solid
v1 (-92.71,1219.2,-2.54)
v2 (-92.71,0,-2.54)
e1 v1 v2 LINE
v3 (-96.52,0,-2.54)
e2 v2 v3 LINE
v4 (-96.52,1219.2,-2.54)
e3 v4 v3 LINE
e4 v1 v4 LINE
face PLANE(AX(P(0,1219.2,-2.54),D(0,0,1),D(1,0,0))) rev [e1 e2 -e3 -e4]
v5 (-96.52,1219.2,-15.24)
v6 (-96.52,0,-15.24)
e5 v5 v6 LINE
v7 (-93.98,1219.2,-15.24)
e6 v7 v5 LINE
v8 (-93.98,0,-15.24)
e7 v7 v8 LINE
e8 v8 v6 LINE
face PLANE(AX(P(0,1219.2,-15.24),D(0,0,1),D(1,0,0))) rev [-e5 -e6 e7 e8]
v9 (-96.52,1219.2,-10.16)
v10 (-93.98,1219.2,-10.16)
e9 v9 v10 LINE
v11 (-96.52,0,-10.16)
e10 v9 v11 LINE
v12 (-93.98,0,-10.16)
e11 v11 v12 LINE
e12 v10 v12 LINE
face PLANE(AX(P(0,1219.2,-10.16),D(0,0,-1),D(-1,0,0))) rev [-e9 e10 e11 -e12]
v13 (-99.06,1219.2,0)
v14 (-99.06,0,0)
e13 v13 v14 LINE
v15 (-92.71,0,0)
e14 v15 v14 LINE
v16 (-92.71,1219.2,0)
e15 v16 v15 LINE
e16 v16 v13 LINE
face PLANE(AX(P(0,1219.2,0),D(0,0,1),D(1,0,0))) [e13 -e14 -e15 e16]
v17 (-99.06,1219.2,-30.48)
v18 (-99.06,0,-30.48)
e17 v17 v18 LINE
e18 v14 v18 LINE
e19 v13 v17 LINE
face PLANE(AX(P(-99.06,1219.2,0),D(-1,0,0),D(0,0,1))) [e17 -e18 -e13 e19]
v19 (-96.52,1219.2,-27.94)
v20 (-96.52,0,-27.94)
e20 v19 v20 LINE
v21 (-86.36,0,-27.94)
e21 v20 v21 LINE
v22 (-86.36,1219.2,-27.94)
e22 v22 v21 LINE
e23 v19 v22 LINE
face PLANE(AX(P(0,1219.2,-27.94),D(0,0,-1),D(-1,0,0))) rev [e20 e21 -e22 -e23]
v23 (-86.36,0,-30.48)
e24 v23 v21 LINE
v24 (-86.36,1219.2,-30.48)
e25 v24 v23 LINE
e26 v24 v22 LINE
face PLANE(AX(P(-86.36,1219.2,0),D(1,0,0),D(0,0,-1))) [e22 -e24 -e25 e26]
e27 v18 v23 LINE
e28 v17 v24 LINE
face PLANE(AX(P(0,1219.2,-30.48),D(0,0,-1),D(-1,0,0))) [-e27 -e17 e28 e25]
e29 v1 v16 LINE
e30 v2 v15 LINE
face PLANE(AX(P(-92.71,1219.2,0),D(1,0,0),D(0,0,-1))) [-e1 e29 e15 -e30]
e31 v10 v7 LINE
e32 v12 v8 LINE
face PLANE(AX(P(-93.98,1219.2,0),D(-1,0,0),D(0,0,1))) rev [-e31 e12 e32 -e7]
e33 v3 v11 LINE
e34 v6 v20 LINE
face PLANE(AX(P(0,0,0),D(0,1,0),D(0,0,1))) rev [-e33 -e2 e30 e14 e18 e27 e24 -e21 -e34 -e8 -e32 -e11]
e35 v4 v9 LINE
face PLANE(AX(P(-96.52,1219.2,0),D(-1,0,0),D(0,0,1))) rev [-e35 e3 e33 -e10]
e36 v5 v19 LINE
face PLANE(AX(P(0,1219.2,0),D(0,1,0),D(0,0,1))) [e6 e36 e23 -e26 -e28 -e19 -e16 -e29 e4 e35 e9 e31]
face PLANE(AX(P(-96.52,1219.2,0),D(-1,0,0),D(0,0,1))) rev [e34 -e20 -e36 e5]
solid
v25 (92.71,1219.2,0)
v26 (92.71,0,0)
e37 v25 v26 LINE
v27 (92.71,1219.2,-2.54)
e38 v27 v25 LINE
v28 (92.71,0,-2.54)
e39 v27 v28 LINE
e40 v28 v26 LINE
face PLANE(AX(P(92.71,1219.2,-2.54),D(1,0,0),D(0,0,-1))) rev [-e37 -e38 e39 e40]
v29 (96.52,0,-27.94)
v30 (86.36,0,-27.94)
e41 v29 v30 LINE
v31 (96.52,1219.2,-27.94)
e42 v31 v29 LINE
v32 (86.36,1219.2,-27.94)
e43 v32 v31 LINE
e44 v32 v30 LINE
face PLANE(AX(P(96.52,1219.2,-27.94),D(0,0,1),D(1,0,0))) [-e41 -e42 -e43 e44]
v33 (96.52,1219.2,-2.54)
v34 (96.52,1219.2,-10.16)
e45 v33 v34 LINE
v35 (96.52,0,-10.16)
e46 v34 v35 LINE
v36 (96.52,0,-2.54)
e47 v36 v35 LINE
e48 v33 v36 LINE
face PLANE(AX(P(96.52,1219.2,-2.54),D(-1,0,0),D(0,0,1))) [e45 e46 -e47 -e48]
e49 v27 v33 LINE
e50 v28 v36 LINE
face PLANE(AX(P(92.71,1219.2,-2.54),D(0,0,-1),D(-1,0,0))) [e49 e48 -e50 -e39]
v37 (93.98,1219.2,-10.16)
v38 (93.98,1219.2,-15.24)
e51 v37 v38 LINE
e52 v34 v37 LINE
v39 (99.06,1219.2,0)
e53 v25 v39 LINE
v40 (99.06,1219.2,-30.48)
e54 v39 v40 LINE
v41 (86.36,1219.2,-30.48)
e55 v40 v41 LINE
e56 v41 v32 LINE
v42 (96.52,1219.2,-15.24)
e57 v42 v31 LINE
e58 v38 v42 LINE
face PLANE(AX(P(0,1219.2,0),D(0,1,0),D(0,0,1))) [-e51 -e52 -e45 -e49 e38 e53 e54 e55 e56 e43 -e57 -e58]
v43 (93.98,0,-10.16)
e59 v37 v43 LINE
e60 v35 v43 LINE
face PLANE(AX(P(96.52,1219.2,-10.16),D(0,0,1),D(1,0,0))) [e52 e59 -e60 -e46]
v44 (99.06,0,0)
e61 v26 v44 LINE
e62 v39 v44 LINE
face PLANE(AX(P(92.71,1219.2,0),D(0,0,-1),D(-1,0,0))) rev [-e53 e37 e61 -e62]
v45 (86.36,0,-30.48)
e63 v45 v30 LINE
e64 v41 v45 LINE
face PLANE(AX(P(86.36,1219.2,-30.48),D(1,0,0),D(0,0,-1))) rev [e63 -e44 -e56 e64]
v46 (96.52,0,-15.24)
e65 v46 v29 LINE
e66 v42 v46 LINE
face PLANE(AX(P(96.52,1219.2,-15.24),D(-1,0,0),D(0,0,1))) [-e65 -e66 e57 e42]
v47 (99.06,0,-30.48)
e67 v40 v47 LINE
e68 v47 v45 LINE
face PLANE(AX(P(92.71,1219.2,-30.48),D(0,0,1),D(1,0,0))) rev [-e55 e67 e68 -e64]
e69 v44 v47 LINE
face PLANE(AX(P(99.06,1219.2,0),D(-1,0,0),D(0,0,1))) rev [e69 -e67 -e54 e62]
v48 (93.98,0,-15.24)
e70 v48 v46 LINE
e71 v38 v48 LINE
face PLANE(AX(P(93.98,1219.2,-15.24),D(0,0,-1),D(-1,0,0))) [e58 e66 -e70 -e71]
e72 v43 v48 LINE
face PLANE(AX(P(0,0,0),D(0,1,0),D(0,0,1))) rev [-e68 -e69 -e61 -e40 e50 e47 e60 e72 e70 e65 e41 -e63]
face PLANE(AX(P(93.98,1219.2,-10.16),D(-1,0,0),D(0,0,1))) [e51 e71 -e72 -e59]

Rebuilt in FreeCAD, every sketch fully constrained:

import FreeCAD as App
import Part
import Sketcher
Q = App.Units.Quantity


def add_polygon(sketch, points):
    """Adds a closed chain of lines whose ends are joined by coincident constraints."""
    first, n = sketch.GeometryCount, len(points)
    for a, b in zip(points, points[1:] + points[:1]):
        sketch.addGeometry(Part.LineSegment(App.Vector(*a, 0), App.Vector(*b, 0)), False)
    for i in range(n):
        sketch.addConstraint(Sketcher.Constraint("Coincident", first + i, 2, first + (i + 1) % n, 1))

doc = App.newDocument("Part")
params = doc.addObject("Spreadsheet::Sheet", "Params")
for row, (alias, value) in enumerate([
    ("sketch1_width", "0.1 in"),
    ("sketch1_width2", "0.4 in"),
    ("sketch1_width3", "0.5 in"),
    ("sketch1_height", "0.3 in"),
    ("sketch1_height2", "0.2 in"),
    ("pad1_length", "48 in"),
    ("sketch2_width", "0.5 in"),
    ("sketch2_width2", "0.4 in"),
    ("sketch2_width3", "0.1 in"),
    ("sketch2_height", "1.2 in"),
    ("sketch2_height2", "0.2 in"),
    ("pad2_length", "48 in"),
], start=1):
    params.set(f"A{row}", alias)
    params.set(f"B{row}", "=" + value)
    params.setAlias(f"B{row}", alias)

body = doc.addObject("PartDesign::Body", "Body")

# Sketch on XZ plane
sketch1 = body.newObject("Sketcher::SketchObject", "Sketch")
sketch1.AttachmentSupport = (doc.getObject("XZ_Plane"), [""])
sketch1.MapMode = "FlatFace"
add_polygon(sketch1, [(-99.1, 0), (-92.7, 0), (-92.7, -2.5), (-96.5, -2.5), (-96.5, -10.2), (-94, -10.2), (-94, -15.2), (-96.5, -15.2), (-96.5, -27.9), (-86.4, -27.9), (-86.4, -30.5), (-99.1, -30.5)])  # lines 0-11
sketch1.addConstraint(Sketcher.Constraint("Horizontal", 0))
sketch1.addConstraint(Sketcher.Constraint("Vertical", 1))
sketch1.addConstraint(Sketcher.Constraint("Horizontal", 2))
sketch1.addConstraint(Sketcher.Constraint("Vertical", 3))
sketch1.addConstraint(Sketcher.Constraint("Horizontal", 4))
sketch1.addConstraint(Sketcher.Constraint("Vertical", 5))
sketch1.addConstraint(Sketcher.Constraint("Horizontal", 6))
sketch1.addConstraint(Sketcher.Constraint("Vertical", 7))
sketch1.addConstraint(Sketcher.Constraint("Horizontal", 8))
sketch1.addConstraint(Sketcher.Constraint("Vertical", 9))
sketch1.addConstraint(Sketcher.Constraint("Horizontal", 10))
sketch1.addConstraint(Sketcher.Constraint("Vertical", 11))
sketch1.addConstraint(Sketcher.Constraint("PointOnObject", 0, 2, -1))
sketch1.addConstraint(Sketcher.Constraint("Vertical", 3, 2, 6, 2))
sketch1.addConstraint(Sketcher.Constraint("Equal", 6, 1))
sketch1.addConstraint(Sketcher.Constraint("Equal", 10, 7))
sketch1.addConstraint(Sketcher.Constraint("Equal", 1, 9))
sketch1.addConstraint(Sketcher.Constraint("DistanceX", 4, 1, 4, 2, Q("0.1 in")))
sketch1.addConstraint(Sketcher.Constraint("DistanceX", 8, 1, 8, 2, Q("0.4 in")))
sketch1.addConstraint(Sketcher.Constraint("DistanceX", 10, 2, 10, 1, Q("0.5 in")))
sketch1.addConstraint(Sketcher.Constraint("DistanceY", 3, 2, 3, 1, Q("0.3 in")))
sketch1.addConstraint(Sketcher.Constraint("DistanceY", 5, 2, 5, 1, Q("0.2 in")))
sketch1.addConstraint(Sketcher.Constraint("DistanceX", 0, 1, 0, 2, Q("0.25 in")))
sketch1.addConstraint(Sketcher.Constraint("DistanceX", 2, 2, -1, 1, Q("3.8 in")))
sketch1.setExpression("Constraints[29]", "Params.sketch1_width")
sketch1.setExpression("Constraints[30]", "Params.sketch1_width2")
sketch1.setExpression("Constraints[31]", "Params.sketch1_width3")
sketch1.setExpression("Constraints[32]", "Params.sketch1_height")
sketch1.setExpression("Constraints[33]", "Params.sketch1_height2")
pad1 = body.newObject("PartDesign::Pad", "Pad")
pad1.Profile = sketch1
pad1.setExpression("Length", "Params.pad1_length")
pad1.Reversed = True
body2 = doc.addObject("PartDesign::Body", "Body001")

# Sketch on XZ plane
sketch2 = body2.newObject("Sketcher::SketchObject", "Sketch001")
sketch2.AttachmentSupport = (doc.getObject("XZ_Plane001"), [""])
sketch2.MapMode = "FlatFace"
add_polygon(sketch2, [(96.5, -2.5), (92.7, -2.5), (92.7, 0), (99.1, 0), (99.1, -30.5), (86.4, -30.5), (86.4, -27.9), (96.5, -27.9), (96.5, -15.2), (94, -15.2), (94, -10.2), (96.5, -10.2)])  # lines 0-11
sketch2.addConstraint(Sketcher.Constraint("Horizontal", 0))
sketch2.addConstraint(Sketcher.Constraint("Vertical", 1))
sketch2.addConstraint(Sketcher.Constraint("Horizontal", 2))
sketch2.addConstraint(Sketcher.Constraint("Vertical", 3))
sketch2.addConstraint(Sketcher.Constraint("Horizontal", 4))
sketch2.addConstraint(Sketcher.Constraint("Vertical", 5))
sketch2.addConstraint(Sketcher.Constraint("Horizontal", 6))
sketch2.addConstraint(Sketcher.Constraint("Vertical", 7))
sketch2.addConstraint(Sketcher.Constraint("Horizontal", 8))
sketch2.addConstraint(Sketcher.Constraint("Vertical", 9))
sketch2.addConstraint(Sketcher.Constraint("Horizontal", 10))
sketch2.addConstraint(Sketcher.Constraint("Vertical", 11))
sketch2.addConstraint(Sketcher.Constraint("PointOnObject", 1, 2, -1))
sketch2.addConstraint(Sketcher.Constraint("Vertical", 7, 2, 10, 2))
sketch2.addConstraint(Sketcher.Constraint("Equal", 10, 1))
sketch2.addConstraint(Sketcher.Constraint("Equal", 1, 5))
sketch2.addConstraint(Sketcher.Constraint("Equal", 4, 7))
sketch2.addConstraint(Sketcher.Constraint("DistanceX", 4, 2, 4, 1, Q("0.5 in")))
sketch2.addConstraint(Sketcher.Constraint("DistanceX", 6, 1, 6, 2, Q("0.4 in")))
sketch2.addConstraint(Sketcher.Constraint("DistanceX", 8, 2, 8, 1, Q("0.1 in")))
sketch2.addConstraint(Sketcher.Constraint("DistanceY", 3, 2, 3, 1, Q("1.2 in")))
sketch2.addConstraint(Sketcher.Constraint("DistanceY", 9, 1, 9, 2, Q("0.2 in")))
sketch2.addConstraint(Sketcher.Constraint("DistanceX", 0, 2, 0, 1, Q("0.15 in")))
sketch2.addConstraint(Sketcher.Constraint("DistanceX", -1, 1, 2, 2, Q("3.9 in")))
sketch2.setExpression("Constraints[29]", "Params.sketch2_width")
sketch2.setExpression("Constraints[30]", "Params.sketch2_width2")
sketch2.setExpression("Constraints[31]", "Params.sketch2_width3")
sketch2.setExpression("Constraints[32]", "Params.sketch2_height")
sketch2.setExpression("Constraints[33]", "Params.sketch2_height2")
pad2 = body2.newObject("PartDesign::Pad", "Pad001")
pad2.Profile = sketch2
pad2.setExpression("Length", "Params.pad2_length")
pad2.Reversed = True

doc.recompute()
